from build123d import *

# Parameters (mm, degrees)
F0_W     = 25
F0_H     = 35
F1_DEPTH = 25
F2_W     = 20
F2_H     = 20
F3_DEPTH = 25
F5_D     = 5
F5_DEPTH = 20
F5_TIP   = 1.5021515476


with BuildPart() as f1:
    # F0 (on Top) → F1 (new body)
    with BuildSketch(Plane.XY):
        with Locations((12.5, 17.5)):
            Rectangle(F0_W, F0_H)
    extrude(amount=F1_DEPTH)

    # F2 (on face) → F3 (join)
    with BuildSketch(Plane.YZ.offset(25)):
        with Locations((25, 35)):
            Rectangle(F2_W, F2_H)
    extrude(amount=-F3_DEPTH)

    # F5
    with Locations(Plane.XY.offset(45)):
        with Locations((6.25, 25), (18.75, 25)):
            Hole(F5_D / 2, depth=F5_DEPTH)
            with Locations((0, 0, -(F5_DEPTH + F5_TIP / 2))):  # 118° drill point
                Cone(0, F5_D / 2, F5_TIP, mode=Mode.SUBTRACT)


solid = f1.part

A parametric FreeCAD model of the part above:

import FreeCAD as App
import Part
import Sketcher

V = App.Vector
Q = App.Units.Quantity

doc = App.newDocument("Part")
body = doc.addObject("PartDesign::Body", "Body")

sketch1 = body.newObject("Sketcher::SketchObject", "Sketch")
sketch1.AttachmentSupport = (doc.getObject("XY_Plane"), [""])
sketch1.MapMode = "FlatFace"
sketch1.addGeometry([
    Part.LineSegment(V(0, 35, 0), V(0, 0, 0)),
    Part.LineSegment(V(0, 0, 0), V(25, 0, 0)),
    Part.LineSegment(V(25, 0, 0), V(25, 35, 0)),
    Part.LineSegment(V(25, 35, 0), V(0, 35, 0)),
], False)
sketch1.addConstraint([
    Sketcher.Constraint("Coincident", 0, 2, 1, 1),
    Sketcher.Constraint("Coincident", 1, 2, 2, 1),
    Sketcher.Constraint("Coincident", 2, 2, 3, 1),
    Sketcher.Constraint("Coincident", 3, 2, 0, 1),
    Sketcher.Constraint("Vertical", 0),
    Sketcher.Constraint("Horizontal", 1),
    Sketcher.Constraint("Vertical", 2),
    Sketcher.Constraint("Horizontal", 3),
    Sketcher.Constraint("Coincident", 0, 2, -1, 1),
    Sketcher.Constraint("DistanceX", 1, 1, 1, 2, Q("25 mm")),
    Sketcher.Constraint("DistanceY", 0, 2, 0, 1, Q("35 mm")),
])
pad1 = body.newObject("PartDesign::Pad", "Pad")
pad1.Profile = sketch1
pad1.Length = 25

sketch2 = body.newObject("Sketcher::SketchObject", "Sketch001")
sketch2.AttachmentSupport = (doc.getObject("YZ_Plane"), [""])
sketch2.MapMode = "FlatFace"
sketch2.AttachmentOffset = App.Placement(V(0, 0, 25), App.Rotation())
sketch2.addGeometry([
    Part.LineSegment(V(15, 45, 0), V(15, 25, 0)),
    Part.LineSegment(V(15, 25, 0), V(35, 25, 0)),
    Part.LineSegment(V(35, 25, 0), V(35, 45, 0)),
    Part.LineSegment(V(35, 45, 0), V(15, 45, 0)),
], False)
sketch2.addConstraint([
    Sketcher.Constraint("Coincident", 0, 2, 1, 1),
    Sketcher.Constraint("Coincident", 1, 2, 2, 1),
    Sketcher.Constraint("Coincident", 2, 2, 3, 1),
    Sketcher.Constraint("Coincident", 3, 2, 0, 1),
    Sketcher.Constraint("Vertical", 0),
    Sketcher.Constraint("Horizontal", 1),
    Sketcher.Constraint("Vertical", 2),
    Sketcher.Constraint("Horizontal", 3),
    Sketcher.Constraint("Equal", 3, 0),
    Sketcher.Constraint("DistanceX", 1, 1, 1, 2, Q("20 mm")),
    Sketcher.Constraint("DistanceX", -1, 1, 0, 2, Q("15 mm")),
    Sketcher.Constraint("DistanceY", -1, 1, 0, 2, Q("25 mm")),
])
pad2 = body.newObject("PartDesign::Pad", "Pad001")
pad2.Profile = sketch2
pad2.Length = 25
pad2.Reversed = True

sketch3 = body.newObject("Sketcher::SketchObject", "Sketch002")
sketch3.AttachmentSupport = (doc.getObject("XY_Plane"), [""])
sketch3.MapMode = "FlatFace"
sketch3.AttachmentOffset = App.Placement(V(0, 0, 45), App.Rotation())
sketch3.addGeometry([
    Part.Circle(V(6.2, 25, 0), V(0, 0, 1), 2.5),
    Part.Circle(V(18.8, 25, 0), V(0, 0, 1), 2.5),
], False)
sketch3.addConstraint([
    Sketcher.Constraint("Equal", 0, 1),
    Sketcher.Constraint("Horizontal", 0, 3, 1, 3),
    Sketcher.Constraint("Diameter", 0, Q("5 mm")),
    Sketcher.Constraint("DistanceY", -1, 1, 0, 3, Q("25 mm")),
    Sketcher.Constraint("DistanceX", 0, 3, 1, 3, Q("12.5 mm")),
    Sketcher.Constraint("DistanceX", -1, 1, 0, 3, Q("6.25 mm")),
])
doc.recompute()
hole = body.newObject("PartDesign::Hole", "Hole")
hole.Profile = sketch3
hole.ThreadType = "None"
hole.Diameter = 5
hole.DepthType = "Dimension"
hole.Depth = 20
hole.DrillPoint = "Angled"
hole.DrillPointAngle = 118

doc.recompute()
